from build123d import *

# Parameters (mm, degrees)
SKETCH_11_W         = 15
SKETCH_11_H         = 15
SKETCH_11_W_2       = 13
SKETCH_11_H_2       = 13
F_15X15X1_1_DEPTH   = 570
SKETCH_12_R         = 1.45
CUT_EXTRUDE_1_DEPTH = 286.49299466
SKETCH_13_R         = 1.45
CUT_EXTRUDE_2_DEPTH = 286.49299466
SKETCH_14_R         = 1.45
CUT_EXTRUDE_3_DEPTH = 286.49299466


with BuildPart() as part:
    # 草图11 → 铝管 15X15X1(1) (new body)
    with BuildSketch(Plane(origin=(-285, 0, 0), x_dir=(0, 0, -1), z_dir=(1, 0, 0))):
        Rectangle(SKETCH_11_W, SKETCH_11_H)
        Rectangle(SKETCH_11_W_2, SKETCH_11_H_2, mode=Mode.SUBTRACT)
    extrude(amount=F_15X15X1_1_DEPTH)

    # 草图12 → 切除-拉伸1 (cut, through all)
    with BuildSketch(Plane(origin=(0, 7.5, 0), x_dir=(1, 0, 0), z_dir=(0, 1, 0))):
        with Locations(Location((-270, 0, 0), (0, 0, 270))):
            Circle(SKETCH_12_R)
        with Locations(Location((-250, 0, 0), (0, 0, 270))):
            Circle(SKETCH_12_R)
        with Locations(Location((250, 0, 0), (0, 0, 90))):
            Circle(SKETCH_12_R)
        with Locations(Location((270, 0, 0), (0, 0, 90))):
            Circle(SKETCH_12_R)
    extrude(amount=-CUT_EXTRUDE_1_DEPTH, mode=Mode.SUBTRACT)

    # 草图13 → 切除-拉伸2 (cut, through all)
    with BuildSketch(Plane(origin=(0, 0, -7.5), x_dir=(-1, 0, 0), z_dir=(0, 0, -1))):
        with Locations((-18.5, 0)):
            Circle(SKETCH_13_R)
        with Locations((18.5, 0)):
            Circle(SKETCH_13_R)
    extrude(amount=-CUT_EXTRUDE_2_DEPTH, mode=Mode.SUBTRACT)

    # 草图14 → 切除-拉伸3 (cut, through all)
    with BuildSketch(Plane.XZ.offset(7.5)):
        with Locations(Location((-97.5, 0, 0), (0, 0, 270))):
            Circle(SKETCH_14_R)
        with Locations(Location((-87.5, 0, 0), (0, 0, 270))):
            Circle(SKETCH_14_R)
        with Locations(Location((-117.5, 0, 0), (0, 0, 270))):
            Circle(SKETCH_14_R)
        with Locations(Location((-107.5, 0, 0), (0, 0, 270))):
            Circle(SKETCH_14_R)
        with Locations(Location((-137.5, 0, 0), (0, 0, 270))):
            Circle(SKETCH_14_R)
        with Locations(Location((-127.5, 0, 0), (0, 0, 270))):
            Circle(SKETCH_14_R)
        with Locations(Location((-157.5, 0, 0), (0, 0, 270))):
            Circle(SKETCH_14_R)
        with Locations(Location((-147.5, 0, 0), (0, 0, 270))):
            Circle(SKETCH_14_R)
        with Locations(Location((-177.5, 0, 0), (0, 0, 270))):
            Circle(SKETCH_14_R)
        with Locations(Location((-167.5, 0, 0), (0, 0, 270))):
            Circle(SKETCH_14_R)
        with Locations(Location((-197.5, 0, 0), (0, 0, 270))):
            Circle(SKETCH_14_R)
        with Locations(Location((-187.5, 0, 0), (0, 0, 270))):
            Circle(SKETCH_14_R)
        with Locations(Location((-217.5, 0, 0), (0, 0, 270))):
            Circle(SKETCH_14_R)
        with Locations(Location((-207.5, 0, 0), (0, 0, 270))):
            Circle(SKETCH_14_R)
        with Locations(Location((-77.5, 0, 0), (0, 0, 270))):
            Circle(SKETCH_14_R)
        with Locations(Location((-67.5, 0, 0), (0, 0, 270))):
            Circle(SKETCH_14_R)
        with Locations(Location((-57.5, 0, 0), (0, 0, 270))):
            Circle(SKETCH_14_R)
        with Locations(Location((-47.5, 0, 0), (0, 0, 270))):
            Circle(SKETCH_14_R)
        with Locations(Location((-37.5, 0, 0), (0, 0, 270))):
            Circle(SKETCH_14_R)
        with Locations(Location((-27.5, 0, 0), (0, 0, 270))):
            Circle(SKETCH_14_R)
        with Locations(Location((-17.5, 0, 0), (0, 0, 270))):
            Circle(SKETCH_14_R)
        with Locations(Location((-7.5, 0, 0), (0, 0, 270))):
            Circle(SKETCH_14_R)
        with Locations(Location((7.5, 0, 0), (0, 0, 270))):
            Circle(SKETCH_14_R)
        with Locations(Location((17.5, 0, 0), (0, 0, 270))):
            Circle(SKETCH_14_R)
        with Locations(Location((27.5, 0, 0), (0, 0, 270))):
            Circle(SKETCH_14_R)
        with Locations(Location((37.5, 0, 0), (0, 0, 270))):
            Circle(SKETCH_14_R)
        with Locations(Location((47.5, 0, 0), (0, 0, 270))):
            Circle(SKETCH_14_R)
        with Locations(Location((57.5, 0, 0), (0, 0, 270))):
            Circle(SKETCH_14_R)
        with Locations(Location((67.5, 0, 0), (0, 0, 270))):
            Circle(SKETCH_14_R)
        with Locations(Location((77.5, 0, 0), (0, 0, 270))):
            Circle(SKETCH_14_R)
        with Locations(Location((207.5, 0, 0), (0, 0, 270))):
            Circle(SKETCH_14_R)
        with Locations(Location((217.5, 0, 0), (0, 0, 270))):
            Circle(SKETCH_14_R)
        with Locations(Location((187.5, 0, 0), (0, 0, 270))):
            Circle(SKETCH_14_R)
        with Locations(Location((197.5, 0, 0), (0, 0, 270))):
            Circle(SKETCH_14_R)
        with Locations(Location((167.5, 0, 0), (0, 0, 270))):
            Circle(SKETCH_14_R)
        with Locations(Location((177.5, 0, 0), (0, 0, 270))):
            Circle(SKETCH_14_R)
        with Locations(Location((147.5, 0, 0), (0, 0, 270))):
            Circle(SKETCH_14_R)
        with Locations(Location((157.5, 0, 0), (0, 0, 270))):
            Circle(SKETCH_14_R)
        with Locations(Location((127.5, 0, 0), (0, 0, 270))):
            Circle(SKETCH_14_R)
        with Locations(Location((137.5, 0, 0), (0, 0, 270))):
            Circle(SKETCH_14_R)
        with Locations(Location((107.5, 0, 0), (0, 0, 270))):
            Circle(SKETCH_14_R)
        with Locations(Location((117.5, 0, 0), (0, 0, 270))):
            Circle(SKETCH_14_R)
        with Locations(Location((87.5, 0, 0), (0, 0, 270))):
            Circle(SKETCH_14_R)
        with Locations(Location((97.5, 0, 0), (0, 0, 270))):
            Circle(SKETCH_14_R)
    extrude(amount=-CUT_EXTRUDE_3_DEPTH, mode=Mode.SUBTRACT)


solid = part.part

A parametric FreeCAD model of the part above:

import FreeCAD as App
import Part
import Sketcher


def add_polygon(sketch, points):
    """Adds a closed chain of lines whose ends are joined by coincident constraints."""
    first, n = sketch.GeometryCount, len(points)
    for a, b in zip(points, points[1:] + points[:1]):
        sketch.addGeometry(Part.LineSegment(App.Vector(*a, 0), App.Vector(*b, 0)), False)
    for i in range(n):
        sketch.addConstraint(Sketcher.Constraint("Coincident", first + i, 2, first + (i + 1) % n, 1))

doc = App.newDocument("Part")
params = doc.addObject("Spreadsheet::Sheet", "Params")
for row, (alias, value) in enumerate([
    ("sketch1_width", "15 mm"),
    ("sketch1_width2", "13 mm"),
    ("pad1_length", "570 mm"),
    ("sketch2_diameter", "2.9 mm"),
    ("sketch3_diameter", "2.9 mm"),
    ("sketch4_diameter", "2.9 mm"),
], start=1):
    params.set(f"A{row}", alias)
    params.set(f"B{row}", "=" + value)
    params.setAlias(f"B{row}", alias)

body = doc.addObject("PartDesign::Body", "Body")

# Sketch on YZ plane
sketch1 = body.newObject("Sketcher::SketchObject", "Sketch")
sketch1.AttachmentSupport = (doc.getObject("YZ_Plane"), [""])
sketch1.MapMode = "FlatFace"
sketch1.AttachmentOffset = App.Placement(App.Vector(0, 0, -285), App.Rotation())
add_polygon(sketch1, [(8, 8), (-8, 8), (-8, -8), (8, -8)])  # lines 0-3
add_polygon(sketch1, [(-6, -6), (-6, 6), (6, 6), (6, -6)])  # lines 4-7
sketch1.addConstraint([
    Sketcher.Constraint("Horizontal", 0),
    Sketcher.Constraint("Vertical", 1),
    Sketcher.Constraint("Horizontal", 2),
    Sketcher.Constraint("Vertical", 3),
    Sketcher.Constraint("Vertical", 4),
    Sketcher.Constraint("Horizontal", 5),
    Sketcher.Constraint("Vertical", 6),
    Sketcher.Constraint("Horizontal", 7),
    Sketcher.Constraint("Symmetric", 0, 2, 2, 2, -1, 1),
    Sketcher.Constraint("Symmetric", 4, 2, 6, 2, -1, 1),
    Sketcher.Constraint("Equal", 2, 1),
    Sketcher.Constraint("Equal", 7, 4),
    Sketcher.Constraint("DistanceX", 0, 2, 0, 1, 15.0),
    Sketcher.Constraint("DistanceX", 5, 1, 5, 2, 13.0),
])
sketch1.setExpression("Constraints[20]", "Params.sketch1_width")
sketch1.setExpression("Constraints[21]", "Params.sketch1_width2")
pad1 = body.newObject("PartDesign::Pad", "Pad")
pad1.Profile = sketch1
pad1.setExpression("Length", "Params.pad1_length")

# Sketch on XZ plane
sketch2 = body.newObject("Sketcher::SketchObject", "Sketch001")
sketch2.AttachmentSupport = (doc.getObject("XZ_Plane"), [""])
sketch2.MapMode = "FlatFace"
sketch2.AttachmentOffset = App.Placement(App.Vector(0, 0, -7.5), App.Rotation())
sketch2.addGeometry([
    Part.Circle(App.Vector(-270, 0, 0), App.Vector(0, 0, 1), 1.4),
    Part.Circle(App.Vector(-250, 0, 0), App.Vector(0, 0, 1), 1.4),
    Part.Circle(App.Vector(250, 0, 0), App.Vector(0, 0, 1), 1.4),
    Part.Circle(App.Vector(270, 0, 0), App.Vector(0, 0, 1), 1.4),
], False)
sketch2.addConstraint([
    Sketcher.Constraint("Equal", 0, 1),
    Sketcher.Constraint("Equal", 1, 2),
    Sketcher.Constraint("Equal", 2, 3),
    Sketcher.Constraint("Symmetric", 1, 3, 2, 3, -1, 1),
    Sketcher.Constraint("Symmetric", 0, 3, 3, 3, -1, 1),
    Sketcher.Constraint("PointOnObject", 0, 3, -1),
    Sketcher.Constraint("PointOnObject", 1, 3, -1),
    Sketcher.Constraint("Diameter", 0, 2.9),
    Sketcher.Constraint("DistanceX", 0, 3, -1, 1, 270.0),
    Sketcher.Constraint("DistanceX", 1, 3, -1, 1, 250.0),
])
sketch2.setExpression("Constraints[7]", "Params.sketch2_diameter")
pocket1 = body.newObject("PartDesign::Pocket", "Pocket")
pocket1.Profile = sketch2
pocket1.Type = "ThroughAll"
pocket1.Reversed = True

# Sketch on XY plane
sketch3 = body.newObject("Sketcher::SketchObject", "Sketch002")
sketch3.AttachmentSupport = (doc.getObject("XY_Plane"), [""])
sketch3.MapMode = "FlatFace"
sketch3.AttachmentOffset = App.Placement(App.Vector(0, 0, -7.5), App.Rotation())
sketch3.addGeometry([
    Part.Circle(App.Vector(18.5, 0, 0), App.Vector(0, 0, 1), 1.4),
    Part.Circle(App.Vector(-18.5, 0, 0), App.Vector(0, 0, 1), 1.4),
], False)
sketch3.addConstraint([
    Sketcher.Constraint("Equal", 0, 1),
    Sketcher.Constraint("Symmetric", 0, 3, 1, 3, -1, 1),
    Sketcher.Constraint("PointOnObject", 0, 3, -1),
    Sketcher.Constraint("Diameter", 0, 2.9),
    Sketcher.Constraint("DistanceX", 1, 3, 0, 3, 37.0),
])
sketch3.setExpression("Constraints[3]", "Params.sketch3_diameter")
pocket2 = body.newObject("PartDesign::Pocket", "Pocket001")
pocket2.Profile = sketch3
pocket2.Type = "ThroughAll"
pocket2.Reversed = True

# Sketch on XZ plane
sketch4 = body.newObject("Sketcher::SketchObject", "Sketch003")
sketch4.AttachmentSupport = (doc.getObject("XZ_Plane"), [""])
sketch4.MapMode = "FlatFace"
sketch4.AttachmentOffset = App.Placement(App.Vector(0, 0, 7.5), App.Rotation())
sketch4.addGeometry([
    Part.Circle(App.Vector(-97.5, 0, 0), App.Vector(0, 0, 1), 1.4),  # 0
    Part.Circle(App.Vector(-87.5, 0, 0), App.Vector(0, 0, 1), 1.4),  # 1
    Part.Circle(App.Vector(-117.5, 0, 0), App.Vector(0, 0, 1), 1.4),  # 2
    Part.Circle(App.Vector(-107.5, 0, 0), App.Vector(0, 0, 1), 1.4),  # 3
    Part.Circle(App.Vector(-137.5, 0, 0), App.Vector(0, 0, 1), 1.4),  # 4
    Part.Circle(App.Vector(-127.5, 0, 0), App.Vector(0, 0, 1), 1.4),  # 5
    Part.Circle(App.Vector(-157.5, 0, 0), App.Vector(0, 0, 1), 1.4),  # 6
    Part.Circle(App.Vector(-147.5, 0, 0), App.Vector(0, 0, 1), 1.4),  # 7
    Part.Circle(App.Vector(-177.5, 0, 0), App.Vector(0, 0, 1), 1.4),  # 8
    Part.Circle(App.Vector(-167.5, 0, 0), App.Vector(0, 0, 1), 1.4),  # 9
    Part.Circle(App.Vector(-197.5, 0, 0), App.Vector(0, 0, 1), 1.4),  # 10
    Part.Circle(App.Vector(-187.5, 0, 0), App.Vector(0, 0, 1), 1.4),  # 11
    Part.Circle(App.Vector(-217.5, 0, 0), App.Vector(0, 0, 1), 1.4),  # 12
    Part.Circle(App.Vector(-207.5, 0, 0), App.Vector(0, 0, 1), 1.4),  # 13
    Part.Circle(App.Vector(-77.5, 0, 0), App.Vector(0, 0, 1), 1.4),  # 14
    Part.Circle(App.Vector(-67.5, 0, 0), App.Vector(0, 0, 1), 1.4),  # 15
    Part.Circle(App.Vector(-57.5, 0, 0), App.Vector(0, 0, 1), 1.4),  # 16
    Part.Circle(App.Vector(-47.5, 0, 0), App.Vector(0, 0, 1), 1.4),  # 17
    Part.Circle(App.Vector(-37.5, 0, 0), App.Vector(0, 0, 1), 1.4),  # 18
    Part.Circle(App.Vector(-27.5, 0, 0), App.Vector(0, 0, 1), 1.4),  # 19
    Part.Circle(App.Vector(-17.5, 0, 0), App.Vector(0, 0, 1), 1.4),  # 20
    Part.Circle(App.Vector(-7.5, 0, 0), App.Vector(0, 0, 1), 1.4),  # 21
    Part.Circle(App.Vector(7.5, 0, 0), App.Vector(0, 0, 1), 1.4),  # 22
    Part.Circle(App.Vector(17.5, 0, 0), App.Vector(0, 0, 1), 1.4),  # 23
    Part.Circle(App.Vector(27.5, 0, 0), App.Vector(0, 0, 1), 1.4),  # 24
    Part.Circle(App.Vector(37.5, 0, 0), App.Vector(0, 0, 1), 1.4),  # 25
    Part.Circle(App.Vector(47.5, 0, 0), App.Vector(0, 0, 1), 1.4),  # 26
    Part.Circle(App.Vector(57.5, 0, 0), App.Vector(0, 0, 1), 1.4),  # 27
    Part.Circle(App.Vector(67.5, 0, 0), App.Vector(0, 0, 1), 1.4),  # 28
    Part.Circle(App.Vector(77.5, 0, 0), App.Vector(0, 0, 1), 1.4),  # 29
    Part.Circle(App.Vector(207.5, 0, 0), App.Vector(0, 0, 1), 1.4),  # 30
    Part.Circle(App.Vector(217.5, 0, 0), App.Vector(0, 0, 1), 1.4),  # 31
    Part.Circle(App.Vector(187.5, 0, 0), App.Vector(0, 0, 1), 1.4),  # 32
    Part.Circle(App.Vector(197.5, 0, 0), App.Vector(0, 0, 1), 1.4),  # 33
    Part.Circle(App.Vector(167.5, 0, 0), App.Vector(0, 0, 1), 1.4),  # 34
    Part.Circle(App.Vector(177.5, 0, 0), App.Vector(0, 0, 1), 1.4),  # 35
    Part.Circle(App.Vector(147.5, 0, 0), App.Vector(0, 0, 1), 1.4),  # 36
    Part.Circle(App.Vector(157.5, 0, 0), App.Vector(0, 0, 1), 1.4),  # 37
    Part.Circle(App.Vector(127.5, 0, 0), App.Vector(0, 0, 1), 1.4),  # 38
    Part.Circle(App.Vector(137.5, 0, 0), App.Vector(0, 0, 1), 1.4),  # 39
    Part.Circle(App.Vector(107.5, 0, 0), App.Vector(0, 0, 1), 1.4),  # 40
    Part.Circle(App.Vector(117.5, 0, 0), App.Vector(0, 0, 1), 1.4),  # 41
    Part.Circle(App.Vector(87.5, 0, 0), App.Vector(0, 0, 1), 1.4),  # 42
    Part.Circle(App.Vector(97.5, 0, 0), App.Vector(0, 0, 1), 1.4),  # 43
], False)
sketch4.addConstraint([
    Sketcher.Constraint("Equal", 0, 1),
    Sketcher.Constraint("Equal", 1, 2),
    Sketcher.Constraint("Equal", 2, 3),
    Sketcher.Constraint("Equal", 3, 4),
    Sketcher.Constraint("Equal", 4, 5),
    Sketcher.Constraint("Equal", 5, 6),
    Sketcher.Constraint("Equal", 6, 7),
    Sketcher.Constraint("Equal", 7, 8),
    Sketcher.Constraint("Equal", 8, 9),
    Sketcher.Constraint("Equal", 9, 10),
    Sketcher.Constraint("Equal", 10, 11),
    Sketcher.Constraint("Equal", 11, 12),
    Sketcher.Constraint("Equal", 12, 13),
    Sketcher.Constraint("Equal", 13, 14),
    Sketcher.Constraint("Equal", 14, 15),
    Sketcher.Constraint("Equal", 15, 16),
    Sketcher.Constraint("Equal", 16, 17),
    Sketcher.Constraint("Equal", 17, 18),
    Sketcher.Constraint("Equal", 18, 19),
    Sketcher.Constraint("Equal", 19, 20),
    Sketcher.Constraint("Equal", 20, 21),
    Sketcher.Constraint("Equal", 21, 22),
    Sketcher.Constraint("Equal", 22, 23),
    Sketcher.Constraint("Equal", 23, 24),
    Sketcher.Constraint("Equal", 24, 25),
    Sketcher.Constraint("Equal", 25, 26),
    Sketcher.Constraint("Equal", 26, 27),
    Sketcher.Constraint("Equal", 27, 28),
    Sketcher.Constraint("Equal", 28, 29),
    Sketcher.Constraint("Equal", 29, 30),
    Sketcher.Constraint("Equal", 30, 31),
    Sketcher.Constraint("Equal", 31, 32),
    Sketcher.Constraint("Equal", 32, 33),
    Sketcher.Constraint("Equal", 33, 34),
    Sketcher.Constraint("Equal", 34, 35),
    Sketcher.Constraint("Equal", 35, 36),
    Sketcher.Constraint("Equal", 36, 37),
    Sketcher.Constraint("Equal", 37, 38),
    Sketcher.Constraint("Equal", 38, 39),
    Sketcher.Constraint("Equal", 39, 40),
    Sketcher.Constraint("Equal", 40, 41),
    Sketcher.Constraint("Equal", 41, 42),
    Sketcher.Constraint("Equal", 42, 43),
    Sketcher.Constraint("Symmetric", 21, 3, 22, 3, -1, 1),
    Sketcher.Constraint("Symmetric", 20, 3, 23, 3, -1, 1),
    Sketcher.Constraint("Symmetric", 19, 3, 24, 3, -1, 1),
    Sketcher.Constraint("Symmetric", 18, 3, 25, 3, -1, 1),
    Sketcher.Constraint("Symmetric", 17, 3, 26, 3, -1, 1),
    Sketcher.Constraint("Symmetric", 16, 3, 27, 3, -1, 1),
    Sketcher.Constraint("Symmetric", 15, 3, 28, 3, -1, 1),
    Sketcher.Constraint("Symmetric", 14, 3, 29, 3, -1, 1),
    Sketcher.Constraint("Symmetric", 13, 3, 30, 3, -1, 1),
    Sketcher.Constraint("Symmetric", 12, 3, 31, 3, -1, 1),
    Sketcher.Constraint("Symmetric", 11, 3, 32, 3, -1, 1),
    Sketcher.Constraint("Symmetric", 10, 3, 33, 3, -1, 1),
    Sketcher.Constraint("Symmetric", 9, 3, 34, 3, -1, 1),
    Sketcher.Constraint("Symmetric", 8, 3, 35, 3, -1, 1),
    Sketcher.Constraint("Symmetric", 7, 3, 36, 3, -1, 1),
    Sketcher.Constraint("Symmetric", 6, 3, 37, 3, -1, 1),
    Sketcher.Constraint("Symmetric", 5, 3, 38, 3, -1, 1),
    Sketcher.Constraint("Symmetric", 4, 3, 39, 3, -1, 1),
    Sketcher.Constraint("Symmetric", 3, 3, 40, 3, -1, 1),
    Sketcher.Constraint("Symmetric", 2, 3, 41, 3, -1, 1),
    Sketcher.Constraint("Symmetric", 1, 3, 42, 3, -1, 1),
    Sketcher.Constraint("Symmetric", 0, 3, 43, 3, -1, 1),
    Sketcher.Constraint("PointOnObject", 0, 3, -1),
    Sketcher.Constraint("PointOnObject", 1, 3, -1),
    Sketcher.Constraint("PointOnObject", 2, 3, -1),
    Sketcher.Constraint("PointOnObject", 3, 3, -1),
    Sketcher.Constraint("PointOnObject", 4, 3, -1),
    Sketcher.Constraint("PointOnObject", 5, 3, -1),
    Sketcher.Constraint("PointOnObject", 6, 3, -1),
    Sketcher.Constraint("PointOnObject", 7, 3, -1),
    Sketcher.Constraint("PointOnObject", 8, 3, -1),
    Sketcher.Constraint("PointOnObject", 9, 3, -1),
    Sketcher.Constraint("PointOnObject", 10, 3, -1),
    Sketcher.Constraint("PointOnObject", 11, 3, -1),
    Sketcher.Constraint("PointOnObject", 12, 3, -1),
    Sketcher.Constraint("PointOnObject", 13, 3, -1),
    Sketcher.Constraint("PointOnObject", 14, 3, -1),
    Sketcher.Constraint("PointOnObject", 15, 3, -1),
    Sketcher.Constraint("PointOnObject", 16, 3, -1),
    Sketcher.Constraint("PointOnObject", 17, 3, -1),
    Sketcher.Constraint("PointOnObject", 18, 3, -1),
    Sketcher.Constraint("PointOnObject", 19, 3, -1),
    Sketcher.Constraint("PointOnObject", 20, 3, -1),
    Sketcher.Constraint("PointOnObject", 21, 3, -1),
    Sketcher.Constraint("Diameter", 0, 2.9),
    Sketcher.Constraint("DistanceX", 0, 3, 1, 3, 10.0),
    Sketcher.Constraint("DistanceX", 2, 3, 0, 3, 20.0),
    Sketcher.Constraint("DistanceX", 3, 3, 0, 3, 10.0),
    Sketcher.Constraint("DistanceX", 4, 3, 2, 3, 20.0),
    Sketcher.Constraint("DistanceX", 5, 3, 2, 3, 10.0),
    Sketcher.Constraint("DistanceX", 6, 3, 4, 3, 20.0),
    Sketcher.Constraint("DistanceX", 7, 3, 4, 3, 10.0),
    Sketcher.Constraint("DistanceX", 8, 3, 6, 3, 20.0),
    Sketcher.Constraint("DistanceX", 9, 3, 6, 3, 10.0),
    Sketcher.Constraint("DistanceX", 10, 3, 8, 3, 20.0),
    Sketcher.Constraint("DistanceX", 11, 3, 8, 3, 10.0),
    Sketcher.Constraint("DistanceX", 12, 3, 10, 3, 20.0),
    Sketcher.Constraint("DistanceX", 13, 3, 10, 3, 10.0),
    Sketcher.Constraint("DistanceX", 1, 3, 14, 3, 10.0),
    Sketcher.Constraint("DistanceX", 14, 3, 15, 3, 10.0),
    Sketcher.Constraint("DistanceX", 15, 3, 16, 3, 10.0),
    Sketcher.Constraint("DistanceX", 16, 3, 17, 3, 10.0),
    Sketcher.Constraint("DistanceX", 17, 3, 18, 3, 10.0),
    Sketcher.Constraint("DistanceX", 18, 3, 19, 3, 10.0),
    Sketcher.Constraint("DistanceX", 19, 3, 20, 3, 10.0),
    Sketcher.Constraint("DistanceX", 20, 3, 21, 3, 10.0),
    Sketcher.Constraint("DistanceX", 21, 3, 22, 3, 15.0),
])
sketch4.setExpression("Constraints[87]", "Params.sketch4_diameter")
pocket3 = body.newObject("PartDesign::Pocket", "Pocket002")
pocket3.Profile = sketch4
pocket3.Type = "ThroughAll"

doc.recompute()
